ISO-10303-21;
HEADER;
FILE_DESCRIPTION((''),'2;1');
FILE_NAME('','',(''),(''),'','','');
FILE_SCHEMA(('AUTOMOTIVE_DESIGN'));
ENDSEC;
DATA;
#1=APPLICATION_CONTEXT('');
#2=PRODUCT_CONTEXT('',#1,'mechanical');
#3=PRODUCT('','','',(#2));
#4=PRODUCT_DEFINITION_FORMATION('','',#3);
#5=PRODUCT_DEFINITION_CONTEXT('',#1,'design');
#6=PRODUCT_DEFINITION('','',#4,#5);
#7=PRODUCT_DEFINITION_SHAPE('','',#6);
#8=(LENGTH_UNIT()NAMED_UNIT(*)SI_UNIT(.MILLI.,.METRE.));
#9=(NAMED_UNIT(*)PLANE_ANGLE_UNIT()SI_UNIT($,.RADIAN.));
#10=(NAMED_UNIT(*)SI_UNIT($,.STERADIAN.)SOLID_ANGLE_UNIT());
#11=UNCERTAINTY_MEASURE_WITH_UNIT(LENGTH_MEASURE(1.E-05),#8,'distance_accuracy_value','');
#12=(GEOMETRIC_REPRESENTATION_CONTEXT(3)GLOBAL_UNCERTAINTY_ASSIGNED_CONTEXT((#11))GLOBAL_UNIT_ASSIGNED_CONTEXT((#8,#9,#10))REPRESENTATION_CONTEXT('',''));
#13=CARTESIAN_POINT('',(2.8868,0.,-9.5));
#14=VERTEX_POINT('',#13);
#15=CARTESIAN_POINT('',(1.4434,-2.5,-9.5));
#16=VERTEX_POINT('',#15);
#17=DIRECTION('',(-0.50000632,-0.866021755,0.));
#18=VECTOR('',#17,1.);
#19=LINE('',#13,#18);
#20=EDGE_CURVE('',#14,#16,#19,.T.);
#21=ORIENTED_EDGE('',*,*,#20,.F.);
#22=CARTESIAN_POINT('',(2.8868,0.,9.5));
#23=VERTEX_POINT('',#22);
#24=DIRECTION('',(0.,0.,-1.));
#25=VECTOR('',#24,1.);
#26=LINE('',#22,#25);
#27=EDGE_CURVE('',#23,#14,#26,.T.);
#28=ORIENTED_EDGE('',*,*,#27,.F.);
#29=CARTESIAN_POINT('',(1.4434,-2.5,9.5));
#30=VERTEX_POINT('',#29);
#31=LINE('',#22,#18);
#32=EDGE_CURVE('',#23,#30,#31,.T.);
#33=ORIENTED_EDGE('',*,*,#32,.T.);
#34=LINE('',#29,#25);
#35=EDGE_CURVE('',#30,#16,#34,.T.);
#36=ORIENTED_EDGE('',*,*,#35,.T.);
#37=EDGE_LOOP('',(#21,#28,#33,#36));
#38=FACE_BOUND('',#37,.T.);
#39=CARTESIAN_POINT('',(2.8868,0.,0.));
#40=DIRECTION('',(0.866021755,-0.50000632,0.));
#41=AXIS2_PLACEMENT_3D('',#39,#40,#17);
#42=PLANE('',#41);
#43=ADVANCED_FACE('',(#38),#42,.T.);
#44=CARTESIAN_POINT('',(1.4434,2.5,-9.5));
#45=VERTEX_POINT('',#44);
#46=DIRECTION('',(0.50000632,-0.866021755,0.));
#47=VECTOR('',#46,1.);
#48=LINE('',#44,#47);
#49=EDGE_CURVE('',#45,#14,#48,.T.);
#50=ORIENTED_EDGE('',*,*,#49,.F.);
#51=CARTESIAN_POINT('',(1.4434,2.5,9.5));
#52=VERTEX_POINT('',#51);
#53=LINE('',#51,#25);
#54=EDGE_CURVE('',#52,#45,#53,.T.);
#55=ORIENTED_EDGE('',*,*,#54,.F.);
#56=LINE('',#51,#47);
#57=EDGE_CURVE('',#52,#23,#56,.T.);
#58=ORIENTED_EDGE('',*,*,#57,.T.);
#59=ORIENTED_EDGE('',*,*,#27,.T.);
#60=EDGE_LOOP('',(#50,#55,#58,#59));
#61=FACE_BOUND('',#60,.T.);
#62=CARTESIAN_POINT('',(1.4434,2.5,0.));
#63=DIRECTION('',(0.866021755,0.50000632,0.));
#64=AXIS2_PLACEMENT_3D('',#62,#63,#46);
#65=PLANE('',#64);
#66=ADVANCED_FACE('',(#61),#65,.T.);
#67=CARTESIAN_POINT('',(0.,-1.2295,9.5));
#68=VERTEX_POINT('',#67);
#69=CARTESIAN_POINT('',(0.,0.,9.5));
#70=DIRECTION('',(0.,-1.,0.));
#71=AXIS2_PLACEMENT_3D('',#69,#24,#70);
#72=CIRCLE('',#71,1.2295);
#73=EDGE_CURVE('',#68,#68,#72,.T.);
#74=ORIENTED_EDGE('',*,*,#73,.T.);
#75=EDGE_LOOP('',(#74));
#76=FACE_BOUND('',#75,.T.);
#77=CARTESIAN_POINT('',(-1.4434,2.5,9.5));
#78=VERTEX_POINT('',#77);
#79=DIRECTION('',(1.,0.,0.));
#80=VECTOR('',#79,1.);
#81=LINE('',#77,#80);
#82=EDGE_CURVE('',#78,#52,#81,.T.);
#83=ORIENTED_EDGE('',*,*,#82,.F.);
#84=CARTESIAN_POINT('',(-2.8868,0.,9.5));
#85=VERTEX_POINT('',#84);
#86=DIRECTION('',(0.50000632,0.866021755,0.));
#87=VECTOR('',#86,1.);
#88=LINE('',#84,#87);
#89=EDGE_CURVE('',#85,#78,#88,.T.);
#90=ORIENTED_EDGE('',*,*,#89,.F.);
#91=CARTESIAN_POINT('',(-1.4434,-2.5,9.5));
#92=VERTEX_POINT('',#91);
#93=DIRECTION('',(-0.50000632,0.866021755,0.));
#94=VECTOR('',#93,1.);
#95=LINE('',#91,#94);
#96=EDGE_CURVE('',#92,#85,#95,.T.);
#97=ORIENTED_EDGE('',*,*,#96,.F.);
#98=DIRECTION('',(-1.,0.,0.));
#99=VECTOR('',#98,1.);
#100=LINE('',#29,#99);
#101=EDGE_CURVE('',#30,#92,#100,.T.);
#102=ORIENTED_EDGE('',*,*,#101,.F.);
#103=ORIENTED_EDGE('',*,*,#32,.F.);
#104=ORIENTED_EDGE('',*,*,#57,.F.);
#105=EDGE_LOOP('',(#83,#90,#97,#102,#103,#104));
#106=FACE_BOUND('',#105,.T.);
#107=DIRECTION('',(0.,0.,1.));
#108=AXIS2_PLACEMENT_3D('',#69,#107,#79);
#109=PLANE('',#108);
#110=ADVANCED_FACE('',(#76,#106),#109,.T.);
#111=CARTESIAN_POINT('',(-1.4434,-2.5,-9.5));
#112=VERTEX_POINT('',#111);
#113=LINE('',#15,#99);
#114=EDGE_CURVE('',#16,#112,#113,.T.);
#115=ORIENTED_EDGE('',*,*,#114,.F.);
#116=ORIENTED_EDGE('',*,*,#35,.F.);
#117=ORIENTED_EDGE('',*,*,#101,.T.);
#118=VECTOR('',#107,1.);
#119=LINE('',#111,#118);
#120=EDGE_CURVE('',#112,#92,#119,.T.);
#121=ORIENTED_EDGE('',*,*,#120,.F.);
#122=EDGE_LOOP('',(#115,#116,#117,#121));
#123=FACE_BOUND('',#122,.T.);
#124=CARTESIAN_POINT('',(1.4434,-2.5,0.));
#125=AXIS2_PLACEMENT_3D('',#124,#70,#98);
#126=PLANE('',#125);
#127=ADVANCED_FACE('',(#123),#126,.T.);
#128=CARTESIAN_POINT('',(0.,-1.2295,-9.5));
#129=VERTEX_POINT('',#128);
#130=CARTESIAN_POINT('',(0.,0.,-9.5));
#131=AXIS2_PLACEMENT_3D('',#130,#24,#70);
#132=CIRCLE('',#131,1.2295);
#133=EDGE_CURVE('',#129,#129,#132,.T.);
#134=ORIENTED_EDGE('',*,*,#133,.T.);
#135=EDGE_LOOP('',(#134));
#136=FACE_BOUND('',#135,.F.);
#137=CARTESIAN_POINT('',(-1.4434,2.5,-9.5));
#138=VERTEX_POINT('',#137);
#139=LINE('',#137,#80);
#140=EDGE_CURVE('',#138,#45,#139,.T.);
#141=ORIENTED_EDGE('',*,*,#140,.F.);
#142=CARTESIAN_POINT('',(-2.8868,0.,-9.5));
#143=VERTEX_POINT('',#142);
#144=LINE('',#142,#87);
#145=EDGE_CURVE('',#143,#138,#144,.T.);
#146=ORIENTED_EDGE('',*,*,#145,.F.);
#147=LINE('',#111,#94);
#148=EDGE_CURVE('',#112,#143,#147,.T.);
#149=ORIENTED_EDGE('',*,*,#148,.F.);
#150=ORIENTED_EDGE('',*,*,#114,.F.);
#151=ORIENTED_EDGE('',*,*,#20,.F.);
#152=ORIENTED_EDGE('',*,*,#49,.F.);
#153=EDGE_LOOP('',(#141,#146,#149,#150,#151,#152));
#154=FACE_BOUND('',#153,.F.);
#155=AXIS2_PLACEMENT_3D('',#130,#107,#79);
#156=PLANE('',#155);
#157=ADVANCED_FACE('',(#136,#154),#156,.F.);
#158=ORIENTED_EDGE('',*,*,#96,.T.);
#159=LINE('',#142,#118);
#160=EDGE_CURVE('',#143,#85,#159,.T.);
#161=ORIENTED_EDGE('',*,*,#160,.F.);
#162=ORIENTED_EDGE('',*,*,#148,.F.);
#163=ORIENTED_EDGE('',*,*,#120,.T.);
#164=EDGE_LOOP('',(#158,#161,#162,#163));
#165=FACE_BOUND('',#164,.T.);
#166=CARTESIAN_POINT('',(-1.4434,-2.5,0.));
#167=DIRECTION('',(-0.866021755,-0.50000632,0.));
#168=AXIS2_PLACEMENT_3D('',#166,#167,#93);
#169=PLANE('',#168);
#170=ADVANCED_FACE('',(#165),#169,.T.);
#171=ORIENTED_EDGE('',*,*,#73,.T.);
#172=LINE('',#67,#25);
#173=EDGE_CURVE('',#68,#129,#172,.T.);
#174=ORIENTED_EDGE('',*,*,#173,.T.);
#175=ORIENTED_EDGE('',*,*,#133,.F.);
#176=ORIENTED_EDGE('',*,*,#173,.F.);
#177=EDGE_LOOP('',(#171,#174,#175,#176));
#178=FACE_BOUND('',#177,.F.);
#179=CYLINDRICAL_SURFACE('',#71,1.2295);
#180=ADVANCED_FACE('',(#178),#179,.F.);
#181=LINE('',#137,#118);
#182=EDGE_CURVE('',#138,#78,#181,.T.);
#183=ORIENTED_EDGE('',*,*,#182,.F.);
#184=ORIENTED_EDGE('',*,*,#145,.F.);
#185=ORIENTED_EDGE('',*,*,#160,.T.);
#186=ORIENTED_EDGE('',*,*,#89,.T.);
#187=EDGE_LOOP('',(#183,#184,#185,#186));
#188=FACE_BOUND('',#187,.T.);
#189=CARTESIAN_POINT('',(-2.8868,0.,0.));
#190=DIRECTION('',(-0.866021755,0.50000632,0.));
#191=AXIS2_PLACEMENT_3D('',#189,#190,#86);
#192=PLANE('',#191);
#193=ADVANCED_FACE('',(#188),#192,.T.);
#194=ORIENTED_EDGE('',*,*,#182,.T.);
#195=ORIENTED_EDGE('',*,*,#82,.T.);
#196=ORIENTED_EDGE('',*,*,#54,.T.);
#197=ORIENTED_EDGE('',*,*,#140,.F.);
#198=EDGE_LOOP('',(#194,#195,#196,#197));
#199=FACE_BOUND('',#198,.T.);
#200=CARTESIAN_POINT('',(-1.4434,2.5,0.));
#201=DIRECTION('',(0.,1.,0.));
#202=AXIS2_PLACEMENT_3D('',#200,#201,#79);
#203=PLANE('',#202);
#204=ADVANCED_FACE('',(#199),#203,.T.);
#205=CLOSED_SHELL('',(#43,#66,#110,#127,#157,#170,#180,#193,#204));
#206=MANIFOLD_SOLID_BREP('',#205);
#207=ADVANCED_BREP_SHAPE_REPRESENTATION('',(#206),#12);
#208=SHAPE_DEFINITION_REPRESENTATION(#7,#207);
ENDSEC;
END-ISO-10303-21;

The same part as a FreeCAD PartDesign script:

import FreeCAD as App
import Part
import Sketcher
from FreeCAD import Vector
Q = App.Units.Quantity


def add_polygon(sketch, points):
    """Adds a closed chain of lines whose ends are joined by coincident constraints."""
    first, n = sketch.GeometryCount, len(points)
    for a, b in zip(points, points[1:] + points[:1]):
        sketch.addGeometry(Part.LineSegment(App.Vector(*a, 0), App.Vector(*b, 0)), False)
    for i in range(n):
        sketch.addConstraint(Sketcher.Constraint("Coincident", first + i, 2, first + (i + 1) % n, 1))

doc = App.newDocument("Part")
params = doc.addObject("Spreadsheet::Sheet", "Params")
for row, (alias, value) in enumerate([
    ("pad1_length", "19 mm"),
    ("hole_diameter", "2.459 mm"),
], start=1):
    params.set(f"A{row}", alias)
    params.set(f"B{row}", "=" + value)
    params.setAlias(f"B{row}", alias)

body = doc.addObject("PartDesign::Body", "Body")

# Sketch on XY plane
sketch1 = body.newObject("Sketcher::SketchObject", "Sketch")
sketch1.AttachmentSupport = (doc.getObject("XY_Plane"), [""])
sketch1.MapMode = "FlatFace"
add_polygon(sketch1, [(1.4, 2.5), (-1.4, 2.5), (-2.9, 0), (-1.4, -2.5), (1.4, -2.5), (2.9, 0)])  # lines 0-5
sketch1.addConstraint(Sketcher.Constraint("Horizontal", 0))
sketch1.addConstraint(Sketcher.Constraint("Horizontal", 3))
sketch1.addConstraint(Sketcher.Constraint("Symmetric", 0, 2, 3, 2, -1, 1))
sketch1.addConstraint(Sketcher.Constraint("Symmetric", 1, 2, 4, 2, -1, 1))
sketch1.addConstraint(Sketcher.Constraint("PointOnObject", 1, 2, -1))
sketch1.addConstraint(Sketcher.Constraint("Parallel", 2, 5))
sketch1.addConstraint(Sketcher.Constraint("Vertical", 0, 2, 2, 2))
sketch1.addConstraint(Sketcher.Constraint("Angle", 1, Q("-120.0004 deg")))
sketch1.addConstraint(Sketcher.Constraint("DistanceY", 2, 2, 0, 2, Q("5 mm")))
sketch1.addConstraint(Sketcher.Constraint("DistanceX", 0, 2, 0, 1, Q("2.8868 mm")))
pad1 = body.newObject("PartDesign::Pad", "Pad")
pad1.Profile = sketch1
pad1.setExpression("Length", "Params.pad1_length")
pad1.Midplane = True

# Sketch on XY plane
sketch2 = body.newObject("Sketcher::SketchObject", "Sketch001")
sketch2.AttachmentSupport = (doc.getObject("XY_Plane"), [""])
sketch2.MapMode = "FlatFace"
sketch2.AttachmentOffset = App.Placement(Vector(0, 0, 9.5), App.Rotation())
sketch2.addGeometry(Part.Circle(Vector(0, 0, 0), Vector(0, 0, 1), 1.2), False)
sketch2.addConstraint(Sketcher.Constraint("Coincident", 0, 3, -1, 1))
sketch2.addConstraint(Sketcher.Constraint("Diameter", 0, Q("2.459 mm")))
doc.recompute()
hole = body.newObject("PartDesign::Hole", "Hole")
hole.Profile = sketch2
hole.ThreadType = "None"
hole.setExpression("Diameter", "Params.hole_diameter")
hole.DepthType = "ThroughAll"

doc.recompute()
